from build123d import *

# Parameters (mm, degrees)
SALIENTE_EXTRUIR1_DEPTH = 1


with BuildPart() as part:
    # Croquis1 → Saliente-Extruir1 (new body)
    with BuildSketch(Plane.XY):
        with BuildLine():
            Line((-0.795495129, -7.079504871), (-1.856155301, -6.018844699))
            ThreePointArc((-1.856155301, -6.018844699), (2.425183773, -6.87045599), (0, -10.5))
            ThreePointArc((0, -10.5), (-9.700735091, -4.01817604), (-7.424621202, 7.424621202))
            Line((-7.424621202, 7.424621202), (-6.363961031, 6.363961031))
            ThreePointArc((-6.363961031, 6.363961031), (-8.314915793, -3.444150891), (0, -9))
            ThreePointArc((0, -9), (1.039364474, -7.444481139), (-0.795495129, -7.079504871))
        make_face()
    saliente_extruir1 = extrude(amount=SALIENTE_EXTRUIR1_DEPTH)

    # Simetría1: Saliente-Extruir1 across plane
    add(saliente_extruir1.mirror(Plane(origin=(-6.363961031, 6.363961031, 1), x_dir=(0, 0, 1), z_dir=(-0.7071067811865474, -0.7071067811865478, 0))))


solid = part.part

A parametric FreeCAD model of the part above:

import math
import FreeCAD as App
import Part
import Sketcher

V = App.Vector
Q = App.Units.Quantity

doc = App.newDocument("Part")
params = doc.addObject("Spreadsheet::Sheet", "Params")
for row, (alias, value) in enumerate([
    ("sketch1_radius", "9 mm"),
    ("sketch1_radius2", "10.5 mm"),
    ("pad1_length", "1 mm"),
], start=1):
    params.set(f"A{row}", alias)
    params.set(f"B{row}", "=" + value)
    params.setAlias(f"B{row}", alias)

body = doc.addObject("PartDesign::Body", "Body")

# Sketch on XY plane
sketch1 = doc.addObject("Sketcher::SketchObject", "Sketch")
body.addObject(sketch1)
sketch1.AttachmentSupport = (doc.XY_Plane, [""])
sketch1.MapMode = "FlatFace"
sketch1.addGeometry([
    Part.LineSegment(V(-1.9, -6, 0), V(-0.8, -7.1, 0)),  # 0
    Part.ArcOfCircle(Part.Circle(V(0, -7.9, 0), V(0, 0, 1), 1.1), math.radians(-90), math.radians(135)),  # 1
    Part.ArcOfCircle(Part.Circle(V(0, 0, 0), V(0, 0, 1), 9), math.radians(135), math.radians(270)),  # 2
    Part.LineSegment(V(-6.4, 6.4, 0), V(-7.4, 7.4, 0)),  # 3
    Part.ArcOfCircle(Part.Circle(V(0, 0, 0), V(0, 0, 1), 10.5), math.radians(135), math.radians(270)),  # 4
    Part.ArcOfCircle(Part.Circle(V(0, -7.9, 0), V(0, 0, 1), 2.6), math.radians(-90), math.radians(135)),  # 5
], False)
sketch1.addConstraint([
    Sketcher.Constraint("Coincident", 0, 2, 1, 2),
    Sketcher.Constraint("Tangent", 1, 1, 2, 2),
    Sketcher.Constraint("Coincident", 2, 1, 3, 1),
    Sketcher.Constraint("Coincident", 3, 2, 4, 1),
    Sketcher.Constraint("Tangent", 4, 2, 5, 1),
    Sketcher.Constraint("Coincident", 5, 2, 0, 1),
    Sketcher.Constraint("Coincident", 2, 3, -1, 1),
    Sketcher.Constraint("Coincident", 4, 3, -1, 1),
    Sketcher.Constraint("Coincident", 5, 3, 1, 3),
    Sketcher.Constraint("PointOnObject", 1, 3, -2),
    Sketcher.Constraint("Parallel", 0, 3),
    Sketcher.Constraint("Radius", 2, Q("9 mm")),
    Sketcher.Constraint("Radius", 4, Q("10.5 mm")),
    Sketcher.Constraint("Angle", 0, Q("-45 deg")),
    Sketcher.Constraint("Radius", 1, Q("1.125 mm")),
    Sketcher.Constraint("DistanceX", 2, 1, -1, 1, Q("6.363961 mm")),
    Sketcher.Constraint("DistanceX", 0, 2, -1, 1, Q("0.795495 mm")),
])
sketch1.setExpression("Constraints[11]", "Params.sketch1_radius")
sketch1.setExpression("Constraints[12]", "Params.sketch1_radius2")
pad1 = doc.addObject("PartDesign::Pad", "Pad")
body.addObject(pad1)
pad1.Profile = sketch1
pad1.setExpression("Length", "Params.pad1_length")
doc.recompute()

datumplane = doc.addObject("PartDesign::Plane", "DatumPlane")
body.addObject(datumplane)
datumplane.Placement = App.Placement(V(0, 0, 0), App.Rotation(V(-0.707106781, 0.707106781, 0), V(0, 0, -1), V(-0.707106781, -0.707106781, 0), "ZXY"))
mirrored = doc.addObject("PartDesign::Mirrored", "Mirrored")
body.addObject(mirrored)
mirrored.Originals = [pad1]
mirrored.MirrorPlane = (datumplane, [""])
body.Tip = mirrored

doc.recompute()
